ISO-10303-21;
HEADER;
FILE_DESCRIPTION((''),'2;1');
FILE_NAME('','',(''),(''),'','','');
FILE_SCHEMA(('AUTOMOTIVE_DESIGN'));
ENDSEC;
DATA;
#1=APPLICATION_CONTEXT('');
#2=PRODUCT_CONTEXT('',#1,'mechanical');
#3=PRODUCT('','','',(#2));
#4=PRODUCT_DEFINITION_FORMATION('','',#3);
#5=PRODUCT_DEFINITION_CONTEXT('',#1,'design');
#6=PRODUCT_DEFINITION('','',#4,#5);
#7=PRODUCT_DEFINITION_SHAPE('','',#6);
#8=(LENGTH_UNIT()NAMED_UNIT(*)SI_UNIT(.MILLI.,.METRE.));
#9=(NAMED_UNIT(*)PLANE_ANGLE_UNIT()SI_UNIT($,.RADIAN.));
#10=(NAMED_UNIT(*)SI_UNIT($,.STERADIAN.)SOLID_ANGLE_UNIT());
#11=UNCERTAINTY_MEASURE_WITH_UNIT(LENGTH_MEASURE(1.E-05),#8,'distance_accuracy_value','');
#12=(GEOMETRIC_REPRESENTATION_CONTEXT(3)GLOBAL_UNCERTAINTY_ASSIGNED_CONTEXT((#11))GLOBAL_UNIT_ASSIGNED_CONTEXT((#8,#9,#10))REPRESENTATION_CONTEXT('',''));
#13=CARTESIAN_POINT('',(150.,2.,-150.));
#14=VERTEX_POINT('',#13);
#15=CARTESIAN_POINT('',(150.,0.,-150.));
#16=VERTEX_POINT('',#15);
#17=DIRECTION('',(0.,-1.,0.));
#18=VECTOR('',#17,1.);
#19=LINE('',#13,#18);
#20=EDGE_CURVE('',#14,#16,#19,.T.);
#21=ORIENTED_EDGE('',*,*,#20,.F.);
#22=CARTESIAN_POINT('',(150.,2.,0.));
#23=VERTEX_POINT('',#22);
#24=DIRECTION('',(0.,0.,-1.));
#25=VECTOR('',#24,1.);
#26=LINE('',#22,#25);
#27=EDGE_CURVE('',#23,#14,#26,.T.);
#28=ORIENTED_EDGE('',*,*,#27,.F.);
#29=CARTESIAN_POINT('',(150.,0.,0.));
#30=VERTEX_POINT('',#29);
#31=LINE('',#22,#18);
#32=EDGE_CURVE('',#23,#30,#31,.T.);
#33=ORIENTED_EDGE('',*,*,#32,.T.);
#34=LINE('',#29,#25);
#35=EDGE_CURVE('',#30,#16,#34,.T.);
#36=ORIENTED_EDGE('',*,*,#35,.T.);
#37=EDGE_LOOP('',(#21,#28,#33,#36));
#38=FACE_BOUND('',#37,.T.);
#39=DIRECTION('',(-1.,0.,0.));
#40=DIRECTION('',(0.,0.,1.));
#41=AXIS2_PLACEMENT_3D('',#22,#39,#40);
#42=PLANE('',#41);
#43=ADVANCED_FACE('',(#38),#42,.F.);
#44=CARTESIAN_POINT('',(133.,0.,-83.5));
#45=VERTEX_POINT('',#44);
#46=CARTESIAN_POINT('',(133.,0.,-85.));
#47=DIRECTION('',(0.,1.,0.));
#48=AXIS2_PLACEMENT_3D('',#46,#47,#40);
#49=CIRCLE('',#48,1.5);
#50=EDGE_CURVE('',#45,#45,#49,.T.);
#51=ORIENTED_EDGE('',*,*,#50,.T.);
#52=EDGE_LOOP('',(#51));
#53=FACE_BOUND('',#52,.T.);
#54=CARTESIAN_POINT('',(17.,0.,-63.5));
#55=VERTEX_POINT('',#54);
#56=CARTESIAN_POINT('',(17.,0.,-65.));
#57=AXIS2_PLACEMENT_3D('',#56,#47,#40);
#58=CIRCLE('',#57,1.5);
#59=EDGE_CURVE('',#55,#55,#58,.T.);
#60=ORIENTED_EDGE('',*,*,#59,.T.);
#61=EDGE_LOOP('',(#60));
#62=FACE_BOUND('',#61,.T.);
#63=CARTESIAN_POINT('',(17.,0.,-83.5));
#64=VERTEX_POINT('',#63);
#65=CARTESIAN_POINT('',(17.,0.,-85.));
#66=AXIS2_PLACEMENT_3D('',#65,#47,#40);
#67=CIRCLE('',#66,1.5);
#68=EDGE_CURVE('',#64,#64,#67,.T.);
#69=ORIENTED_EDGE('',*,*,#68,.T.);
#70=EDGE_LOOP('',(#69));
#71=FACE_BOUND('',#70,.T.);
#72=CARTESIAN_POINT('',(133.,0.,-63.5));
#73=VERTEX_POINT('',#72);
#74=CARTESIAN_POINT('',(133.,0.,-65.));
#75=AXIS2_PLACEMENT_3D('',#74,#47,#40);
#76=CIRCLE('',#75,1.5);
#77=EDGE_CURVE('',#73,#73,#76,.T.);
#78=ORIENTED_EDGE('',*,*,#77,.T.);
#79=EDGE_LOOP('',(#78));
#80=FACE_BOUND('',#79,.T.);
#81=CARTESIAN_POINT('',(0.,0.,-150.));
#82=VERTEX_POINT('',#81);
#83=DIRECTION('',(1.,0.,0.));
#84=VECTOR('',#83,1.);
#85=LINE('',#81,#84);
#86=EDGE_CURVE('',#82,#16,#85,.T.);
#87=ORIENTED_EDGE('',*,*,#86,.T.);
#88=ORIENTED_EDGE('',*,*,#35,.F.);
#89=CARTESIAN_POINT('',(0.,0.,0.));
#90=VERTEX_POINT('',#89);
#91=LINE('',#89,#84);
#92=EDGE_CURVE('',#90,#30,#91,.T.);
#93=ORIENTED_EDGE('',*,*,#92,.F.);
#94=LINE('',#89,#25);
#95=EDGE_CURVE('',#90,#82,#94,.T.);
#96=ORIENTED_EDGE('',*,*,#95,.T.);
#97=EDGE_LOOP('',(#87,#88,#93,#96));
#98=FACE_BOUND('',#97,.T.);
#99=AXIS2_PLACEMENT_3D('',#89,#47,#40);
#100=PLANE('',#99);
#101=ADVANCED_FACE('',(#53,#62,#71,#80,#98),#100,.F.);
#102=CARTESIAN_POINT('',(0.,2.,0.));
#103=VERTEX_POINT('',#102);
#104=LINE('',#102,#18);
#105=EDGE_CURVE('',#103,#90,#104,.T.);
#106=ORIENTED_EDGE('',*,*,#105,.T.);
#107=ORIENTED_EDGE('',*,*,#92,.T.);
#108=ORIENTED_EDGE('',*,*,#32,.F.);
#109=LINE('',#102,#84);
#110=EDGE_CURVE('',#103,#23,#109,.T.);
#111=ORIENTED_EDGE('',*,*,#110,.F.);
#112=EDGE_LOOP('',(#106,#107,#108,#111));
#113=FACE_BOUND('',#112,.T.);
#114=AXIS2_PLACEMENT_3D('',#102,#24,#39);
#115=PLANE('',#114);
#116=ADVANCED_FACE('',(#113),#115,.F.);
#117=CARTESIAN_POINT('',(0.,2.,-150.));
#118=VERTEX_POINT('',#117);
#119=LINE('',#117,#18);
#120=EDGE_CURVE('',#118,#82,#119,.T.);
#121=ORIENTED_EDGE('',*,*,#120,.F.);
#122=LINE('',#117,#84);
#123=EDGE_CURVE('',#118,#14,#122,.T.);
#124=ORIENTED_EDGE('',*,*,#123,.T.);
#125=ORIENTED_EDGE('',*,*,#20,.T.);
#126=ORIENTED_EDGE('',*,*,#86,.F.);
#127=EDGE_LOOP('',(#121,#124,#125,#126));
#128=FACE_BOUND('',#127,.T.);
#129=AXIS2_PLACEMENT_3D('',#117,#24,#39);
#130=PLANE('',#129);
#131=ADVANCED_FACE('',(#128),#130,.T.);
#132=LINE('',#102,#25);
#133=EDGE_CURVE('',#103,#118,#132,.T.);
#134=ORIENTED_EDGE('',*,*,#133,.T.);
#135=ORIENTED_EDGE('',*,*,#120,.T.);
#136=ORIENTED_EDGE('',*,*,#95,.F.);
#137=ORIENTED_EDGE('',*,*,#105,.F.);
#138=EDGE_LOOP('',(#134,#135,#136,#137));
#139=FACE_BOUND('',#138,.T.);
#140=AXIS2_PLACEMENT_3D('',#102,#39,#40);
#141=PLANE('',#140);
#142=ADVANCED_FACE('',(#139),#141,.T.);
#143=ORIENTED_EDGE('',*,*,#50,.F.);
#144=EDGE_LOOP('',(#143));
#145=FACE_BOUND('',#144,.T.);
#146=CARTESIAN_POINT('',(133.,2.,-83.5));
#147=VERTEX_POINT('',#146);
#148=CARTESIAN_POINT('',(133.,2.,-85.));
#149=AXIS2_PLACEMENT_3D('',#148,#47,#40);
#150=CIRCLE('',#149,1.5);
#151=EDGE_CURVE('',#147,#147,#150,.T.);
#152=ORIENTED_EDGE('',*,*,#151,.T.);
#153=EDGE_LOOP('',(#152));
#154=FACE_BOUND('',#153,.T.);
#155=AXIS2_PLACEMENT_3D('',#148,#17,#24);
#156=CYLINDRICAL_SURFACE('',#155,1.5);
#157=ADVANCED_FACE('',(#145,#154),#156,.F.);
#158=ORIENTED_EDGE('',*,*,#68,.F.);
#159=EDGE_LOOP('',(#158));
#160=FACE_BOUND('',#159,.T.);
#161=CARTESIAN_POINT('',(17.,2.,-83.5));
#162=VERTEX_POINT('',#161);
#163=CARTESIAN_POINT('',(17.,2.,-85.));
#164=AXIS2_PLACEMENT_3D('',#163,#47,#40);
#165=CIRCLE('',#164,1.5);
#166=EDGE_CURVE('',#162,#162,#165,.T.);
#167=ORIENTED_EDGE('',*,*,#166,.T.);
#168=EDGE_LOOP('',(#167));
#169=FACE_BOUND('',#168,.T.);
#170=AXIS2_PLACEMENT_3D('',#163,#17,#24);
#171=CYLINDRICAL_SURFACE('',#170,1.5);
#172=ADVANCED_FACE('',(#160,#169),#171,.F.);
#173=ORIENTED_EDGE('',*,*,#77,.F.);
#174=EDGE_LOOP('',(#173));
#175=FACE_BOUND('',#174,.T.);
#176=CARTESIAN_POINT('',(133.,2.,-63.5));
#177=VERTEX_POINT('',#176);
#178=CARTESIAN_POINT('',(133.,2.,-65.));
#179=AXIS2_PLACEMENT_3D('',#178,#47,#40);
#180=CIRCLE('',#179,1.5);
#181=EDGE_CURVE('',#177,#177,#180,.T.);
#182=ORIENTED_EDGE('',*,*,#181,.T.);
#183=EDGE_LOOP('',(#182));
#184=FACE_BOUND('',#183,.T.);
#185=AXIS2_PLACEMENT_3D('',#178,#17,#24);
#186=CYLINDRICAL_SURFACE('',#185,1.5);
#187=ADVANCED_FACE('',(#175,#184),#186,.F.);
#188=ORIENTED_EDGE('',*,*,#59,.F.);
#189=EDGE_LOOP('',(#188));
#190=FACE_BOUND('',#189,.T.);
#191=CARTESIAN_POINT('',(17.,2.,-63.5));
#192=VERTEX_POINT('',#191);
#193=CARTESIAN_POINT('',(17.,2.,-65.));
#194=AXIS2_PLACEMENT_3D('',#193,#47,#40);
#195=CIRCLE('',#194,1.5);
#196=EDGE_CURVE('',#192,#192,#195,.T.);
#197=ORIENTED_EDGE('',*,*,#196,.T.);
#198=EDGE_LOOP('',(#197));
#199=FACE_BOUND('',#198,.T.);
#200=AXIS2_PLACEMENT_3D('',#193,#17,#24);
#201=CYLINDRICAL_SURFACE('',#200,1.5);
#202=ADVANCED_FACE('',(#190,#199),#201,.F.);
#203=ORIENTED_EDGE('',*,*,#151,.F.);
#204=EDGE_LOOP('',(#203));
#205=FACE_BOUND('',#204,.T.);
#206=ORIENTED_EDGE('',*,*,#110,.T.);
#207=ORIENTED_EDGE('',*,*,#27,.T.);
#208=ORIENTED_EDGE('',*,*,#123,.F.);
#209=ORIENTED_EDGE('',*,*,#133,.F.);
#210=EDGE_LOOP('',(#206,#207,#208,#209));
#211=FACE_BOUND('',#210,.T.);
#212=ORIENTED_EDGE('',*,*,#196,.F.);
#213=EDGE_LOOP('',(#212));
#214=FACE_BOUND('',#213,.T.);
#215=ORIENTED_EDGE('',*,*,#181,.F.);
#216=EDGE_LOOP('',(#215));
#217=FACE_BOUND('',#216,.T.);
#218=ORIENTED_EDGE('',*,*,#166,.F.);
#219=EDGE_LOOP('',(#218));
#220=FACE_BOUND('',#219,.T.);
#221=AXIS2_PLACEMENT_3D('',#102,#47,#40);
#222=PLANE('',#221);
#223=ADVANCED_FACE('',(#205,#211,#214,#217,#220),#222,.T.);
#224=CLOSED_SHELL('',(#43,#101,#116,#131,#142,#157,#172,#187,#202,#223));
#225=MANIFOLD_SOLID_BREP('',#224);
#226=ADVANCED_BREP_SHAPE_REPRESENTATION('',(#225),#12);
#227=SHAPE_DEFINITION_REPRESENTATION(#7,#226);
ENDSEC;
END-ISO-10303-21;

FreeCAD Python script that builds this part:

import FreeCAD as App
import Part
import Sketcher
from FreeCAD import Vector
Q = App.Units.Quantity


def add_polygon(sketch, points):
    """Adds a closed chain of lines whose ends are joined by coincident constraints."""
    first, n = sketch.GeometryCount, len(points)
    for a, b in zip(points, points[1:] + points[:1]):
        sketch.addGeometry(Part.LineSegment(App.Vector(*a, 0), App.Vector(*b, 0)), False)
    for i in range(n):
        sketch.addConstraint(Sketcher.Constraint("Coincident", first + i, 2, first + (i + 1) % n, 1))

doc = App.newDocument("Part")
params = doc.addObject("Spreadsheet::Sheet", "Params")
for row, (alias, value) in enumerate([
    ("sketch1_diameter", "3 mm"),
    ("sketch1_width", "150 mm"),
    ("pad1_length", "2 mm"),
], start=1):
    params.set(f"A{row}", alias)
    params.set(f"B{row}", "=" + value)
    params.setAlias(f"B{row}", alias)

body = doc.addObject("PartDesign::Body", "Body")

sketch1 = doc.addObject("Sketcher::SketchObject", "Sketch")
body.addObject(sketch1)
sketch1.AttachmentSupport = (doc.XZ_Plane, [""])
sketch1.MapMode = "FlatFace"
add_polygon(sketch1, [(0, -150), (0, 0), (150, 0), (150, -150)])
sketch1.addGeometry(Part.Circle(Vector(17, -65, 0), Vector(0, 0, 1), 1.5), False)
sketch1.addGeometry(Part.Circle(Vector(133, -65, 0), Vector(0, 0, 1), 1.5), False)
sketch1.addGeometry(Part.Circle(Vector(17, -85, 0), Vector(0, 0, 1), 1.5), False)
sketch1.addGeometry(Part.Circle(Vector(133, -85, 0), Vector(0, 0, 1), 1.5), False)
sketch1.addConstraint([
    Sketcher.Constraint("Vertical", 0),
    Sketcher.Constraint("Horizontal", 1),
    Sketcher.Constraint("Vertical", 2),
    Sketcher.Constraint("Horizontal", 3),
    Sketcher.Constraint("Coincident", 0, 2, -1, 1),
    Sketcher.Constraint("Equal", 4, 5),
    Sketcher.Constraint("Equal", 5, 6),
    Sketcher.Constraint("Equal", 6, 7),
    Sketcher.Constraint("Horizontal", 4, 3, 5, 3),
    Sketcher.Constraint("Horizontal", 6, 3, 7, 3),
    Sketcher.Constraint("Vertical", 4, 3, 6, 3),
    Sketcher.Constraint("Vertical", 5, 3, 7, 3),
    Sketcher.Constraint("Equal", 3, 0),
    Sketcher.Constraint("Diameter", 4, Q("3 mm")),
    Sketcher.Constraint("DistanceX", 1, 1, 1, 2, Q("150 mm")),
    Sketcher.Constraint("DistanceX", -1, 1, 4, 3, Q("17 mm")),
    Sketcher.Constraint("DistanceY", 4, 3, -1, 1, Q("65 mm")),
    Sketcher.Constraint("DistanceX", -1, 1, 5, 3, Q("133 mm")),
    Sketcher.Constraint("DistanceY", 6, 3, -1, 1, Q("85 mm")),
])
sketch1.setExpression("Constraints[17]", "Params.sketch1_diameter")
sketch1.setExpression("Constraints[18]", "Params.sketch1_width")
pad1 = doc.addObject("PartDesign::Pad", "Pad")
body.addObject(pad1)
pad1.Profile = sketch1
pad1.setExpression("Length", "Params.pad1_length")
pad1.Reversed = True

doc.recompute()
